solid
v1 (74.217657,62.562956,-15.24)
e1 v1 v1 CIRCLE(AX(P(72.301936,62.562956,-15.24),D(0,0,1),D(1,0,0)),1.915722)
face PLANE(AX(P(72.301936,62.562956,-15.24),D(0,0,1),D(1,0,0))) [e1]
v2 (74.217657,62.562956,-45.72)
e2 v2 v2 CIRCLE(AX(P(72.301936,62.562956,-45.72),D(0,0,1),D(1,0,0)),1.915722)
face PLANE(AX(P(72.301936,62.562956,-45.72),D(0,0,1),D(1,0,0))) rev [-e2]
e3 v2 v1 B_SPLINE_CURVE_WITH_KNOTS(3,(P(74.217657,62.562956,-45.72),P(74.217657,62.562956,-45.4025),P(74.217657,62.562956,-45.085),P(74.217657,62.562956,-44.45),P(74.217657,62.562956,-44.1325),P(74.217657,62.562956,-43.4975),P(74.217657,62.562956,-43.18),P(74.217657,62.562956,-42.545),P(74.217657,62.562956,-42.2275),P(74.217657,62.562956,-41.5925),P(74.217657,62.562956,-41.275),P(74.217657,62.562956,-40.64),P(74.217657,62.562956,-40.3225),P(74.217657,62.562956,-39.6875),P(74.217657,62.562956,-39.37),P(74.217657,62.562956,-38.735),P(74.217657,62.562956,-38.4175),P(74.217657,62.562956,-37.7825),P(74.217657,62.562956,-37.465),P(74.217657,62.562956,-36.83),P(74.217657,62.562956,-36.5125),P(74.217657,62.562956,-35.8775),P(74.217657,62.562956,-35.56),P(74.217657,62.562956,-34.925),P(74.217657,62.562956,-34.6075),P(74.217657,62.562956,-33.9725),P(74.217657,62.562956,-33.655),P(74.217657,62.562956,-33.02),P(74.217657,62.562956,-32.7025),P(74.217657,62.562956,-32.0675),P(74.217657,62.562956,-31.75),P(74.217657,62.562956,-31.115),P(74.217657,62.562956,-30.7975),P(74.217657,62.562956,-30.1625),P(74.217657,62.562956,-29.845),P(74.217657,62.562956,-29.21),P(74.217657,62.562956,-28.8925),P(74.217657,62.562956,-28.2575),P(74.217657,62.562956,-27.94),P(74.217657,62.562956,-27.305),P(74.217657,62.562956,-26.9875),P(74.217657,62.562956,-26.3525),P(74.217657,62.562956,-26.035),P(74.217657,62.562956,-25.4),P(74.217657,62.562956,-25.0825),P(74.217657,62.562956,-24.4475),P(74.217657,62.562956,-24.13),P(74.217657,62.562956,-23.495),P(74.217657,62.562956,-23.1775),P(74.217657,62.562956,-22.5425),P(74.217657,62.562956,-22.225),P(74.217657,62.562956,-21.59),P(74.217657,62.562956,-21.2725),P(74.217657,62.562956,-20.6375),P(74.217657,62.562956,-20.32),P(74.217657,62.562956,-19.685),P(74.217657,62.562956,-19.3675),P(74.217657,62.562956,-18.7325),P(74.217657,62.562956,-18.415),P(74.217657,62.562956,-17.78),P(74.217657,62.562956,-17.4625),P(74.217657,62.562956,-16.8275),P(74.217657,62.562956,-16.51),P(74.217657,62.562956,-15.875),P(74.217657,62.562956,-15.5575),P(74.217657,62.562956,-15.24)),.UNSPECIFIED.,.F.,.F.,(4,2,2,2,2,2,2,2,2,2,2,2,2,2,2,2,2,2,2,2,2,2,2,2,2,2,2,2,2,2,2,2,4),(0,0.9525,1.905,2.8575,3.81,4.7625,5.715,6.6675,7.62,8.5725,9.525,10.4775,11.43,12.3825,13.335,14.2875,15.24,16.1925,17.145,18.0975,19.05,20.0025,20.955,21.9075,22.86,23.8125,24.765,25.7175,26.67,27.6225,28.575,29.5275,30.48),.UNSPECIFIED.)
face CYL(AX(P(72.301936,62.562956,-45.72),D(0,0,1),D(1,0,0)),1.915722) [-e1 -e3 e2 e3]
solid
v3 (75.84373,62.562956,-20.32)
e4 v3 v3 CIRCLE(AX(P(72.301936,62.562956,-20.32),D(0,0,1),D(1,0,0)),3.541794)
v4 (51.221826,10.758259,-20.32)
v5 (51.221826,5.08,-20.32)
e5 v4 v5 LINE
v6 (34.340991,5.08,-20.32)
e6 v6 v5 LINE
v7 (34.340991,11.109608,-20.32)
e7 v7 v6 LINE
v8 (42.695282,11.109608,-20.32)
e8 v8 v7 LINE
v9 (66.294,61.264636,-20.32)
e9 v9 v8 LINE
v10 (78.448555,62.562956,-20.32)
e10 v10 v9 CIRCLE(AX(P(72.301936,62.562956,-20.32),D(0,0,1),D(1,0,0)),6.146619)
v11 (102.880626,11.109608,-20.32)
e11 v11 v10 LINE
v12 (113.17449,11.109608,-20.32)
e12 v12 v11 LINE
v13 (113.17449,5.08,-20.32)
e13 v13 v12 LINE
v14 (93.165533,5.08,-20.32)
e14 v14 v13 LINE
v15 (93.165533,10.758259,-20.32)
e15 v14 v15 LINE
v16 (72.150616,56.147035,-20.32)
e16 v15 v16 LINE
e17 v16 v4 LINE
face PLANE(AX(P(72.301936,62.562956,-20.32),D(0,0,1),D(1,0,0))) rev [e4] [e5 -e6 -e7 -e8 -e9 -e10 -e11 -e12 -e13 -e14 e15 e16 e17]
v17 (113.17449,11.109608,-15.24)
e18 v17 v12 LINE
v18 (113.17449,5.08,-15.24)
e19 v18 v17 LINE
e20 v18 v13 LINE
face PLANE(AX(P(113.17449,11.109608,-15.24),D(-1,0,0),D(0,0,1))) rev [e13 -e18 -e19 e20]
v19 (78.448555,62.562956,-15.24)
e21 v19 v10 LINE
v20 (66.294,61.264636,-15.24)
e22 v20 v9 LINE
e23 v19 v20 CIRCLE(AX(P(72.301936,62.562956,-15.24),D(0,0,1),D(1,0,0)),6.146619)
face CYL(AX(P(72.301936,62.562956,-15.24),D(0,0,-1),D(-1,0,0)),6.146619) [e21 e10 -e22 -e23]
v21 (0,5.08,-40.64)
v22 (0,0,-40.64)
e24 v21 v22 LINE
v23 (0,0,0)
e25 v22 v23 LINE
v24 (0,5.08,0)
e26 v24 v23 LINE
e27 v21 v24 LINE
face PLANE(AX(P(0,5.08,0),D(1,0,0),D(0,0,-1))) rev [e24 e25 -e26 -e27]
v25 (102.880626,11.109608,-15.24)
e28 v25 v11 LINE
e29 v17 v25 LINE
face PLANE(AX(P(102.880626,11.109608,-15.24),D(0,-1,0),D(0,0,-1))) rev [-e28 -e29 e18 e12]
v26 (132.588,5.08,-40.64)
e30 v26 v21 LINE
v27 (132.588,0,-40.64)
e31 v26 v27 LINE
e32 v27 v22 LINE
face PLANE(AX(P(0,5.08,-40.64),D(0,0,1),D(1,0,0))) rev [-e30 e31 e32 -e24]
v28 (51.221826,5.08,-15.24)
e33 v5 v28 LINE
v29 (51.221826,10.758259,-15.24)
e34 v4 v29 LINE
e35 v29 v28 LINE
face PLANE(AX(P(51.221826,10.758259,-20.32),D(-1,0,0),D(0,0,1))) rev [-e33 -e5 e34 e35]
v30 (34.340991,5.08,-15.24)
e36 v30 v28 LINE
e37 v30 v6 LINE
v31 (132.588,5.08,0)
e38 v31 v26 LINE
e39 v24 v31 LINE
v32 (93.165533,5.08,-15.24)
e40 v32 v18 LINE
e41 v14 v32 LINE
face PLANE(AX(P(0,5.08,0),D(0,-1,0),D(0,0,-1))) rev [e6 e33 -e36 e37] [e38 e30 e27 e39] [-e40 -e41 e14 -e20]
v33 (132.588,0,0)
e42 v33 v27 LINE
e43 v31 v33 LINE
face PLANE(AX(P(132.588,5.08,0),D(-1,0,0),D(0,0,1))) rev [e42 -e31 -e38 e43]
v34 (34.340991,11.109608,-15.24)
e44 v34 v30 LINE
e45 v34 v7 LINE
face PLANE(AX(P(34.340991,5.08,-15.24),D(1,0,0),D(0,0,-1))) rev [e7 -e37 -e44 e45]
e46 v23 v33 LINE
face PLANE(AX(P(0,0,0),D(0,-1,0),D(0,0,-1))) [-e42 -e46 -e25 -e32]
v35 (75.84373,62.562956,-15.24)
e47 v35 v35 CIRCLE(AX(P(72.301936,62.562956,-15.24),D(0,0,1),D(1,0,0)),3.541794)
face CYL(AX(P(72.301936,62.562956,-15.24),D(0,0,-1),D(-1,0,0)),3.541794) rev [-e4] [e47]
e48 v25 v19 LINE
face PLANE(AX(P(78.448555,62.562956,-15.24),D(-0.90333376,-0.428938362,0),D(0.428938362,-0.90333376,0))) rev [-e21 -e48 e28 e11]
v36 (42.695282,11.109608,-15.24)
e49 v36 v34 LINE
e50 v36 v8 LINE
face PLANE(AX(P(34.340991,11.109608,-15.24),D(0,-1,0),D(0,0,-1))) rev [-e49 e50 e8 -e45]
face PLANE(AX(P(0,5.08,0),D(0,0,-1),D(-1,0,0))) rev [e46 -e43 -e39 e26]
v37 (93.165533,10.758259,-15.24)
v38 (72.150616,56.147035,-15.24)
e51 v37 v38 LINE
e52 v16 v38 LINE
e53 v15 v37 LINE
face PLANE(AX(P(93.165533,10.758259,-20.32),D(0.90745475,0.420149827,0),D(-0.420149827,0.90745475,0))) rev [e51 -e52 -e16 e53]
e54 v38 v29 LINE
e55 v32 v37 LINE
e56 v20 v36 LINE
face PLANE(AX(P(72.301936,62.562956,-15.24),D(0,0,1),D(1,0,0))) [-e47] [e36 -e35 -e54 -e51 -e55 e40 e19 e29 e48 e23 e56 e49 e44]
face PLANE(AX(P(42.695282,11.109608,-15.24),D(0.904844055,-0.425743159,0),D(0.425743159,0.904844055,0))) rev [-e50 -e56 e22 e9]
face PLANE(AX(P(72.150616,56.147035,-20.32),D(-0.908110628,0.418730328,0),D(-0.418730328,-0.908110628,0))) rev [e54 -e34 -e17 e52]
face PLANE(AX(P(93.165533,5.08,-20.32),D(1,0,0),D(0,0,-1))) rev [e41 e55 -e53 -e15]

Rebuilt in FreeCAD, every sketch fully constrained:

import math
import FreeCAD as App
import Part
import Sketcher
Q = App.Units.Quantity


def add_polygon(sketch, points):
    """Adds a closed chain of lines whose ends are joined by coincident constraints."""
    first, n = sketch.GeometryCount, len(points)
    for a, b in zip(points, points[1:] + points[:1]):
        sketch.addGeometry(Part.LineSegment(App.Vector(*a, 0), App.Vector(*b, 0)), False)
    for i in range(n):
        sketch.addConstraint(Sketcher.Constraint("Coincident", first + i, 2, first + (i + 1) % n, 1))

doc = App.newDocument("Part")
params = doc.addObject("Spreadsheet::Sheet", "Params")
for row, (alias, value) in enumerate([
    ("sketch1_height", "1.6 in"),
    ("sketch1_width", "5.22 in"),
    ("pad1_length", "0.2 in"),
    ("pad2_length", "0.2 in"),
    ("pocket1_length", "0.2 in"),
    ("pad3_length", "1.2 in"),
], start=1):
    params.set(f"A{row}", alias)
    params.set(f"B{row}", "=" + value)
    params.setAlias(f"B{row}", alias)

body = doc.addObject("PartDesign::Body", "Body")

# Sketch on XZ plane
sketch1 = doc.addObject("Sketcher::SketchObject", "Sketch")
body.addObject(sketch1)
sketch1.AttachmentSupport = (doc.XZ_Plane, [""])
sketch1.MapMode = "FlatFace"
add_polygon(sketch1, [(0, -41), (0, 0), (133, 0), (133, -41)])  # lines 0-3
sketch1.addConstraint([
    Sketcher.Constraint("Vertical", 0),
    Sketcher.Constraint("Horizontal", 1),
    Sketcher.Constraint("Vertical", 2),
    Sketcher.Constraint("Horizontal", 3),
    Sketcher.Constraint("Coincident", 0, 2, -1, 1),
    Sketcher.Constraint("DistanceY", 0, 1, 0, 2, Q("1.6 in")),
    Sketcher.Constraint("DistanceX", 1, 1, 1, 2, Q("5.22 in")),
])
sketch1.setExpression("Constraints[9]", "Params.sketch1_height")
sketch1.setExpression("Constraints[10]", "Params.sketch1_width")
pad1 = doc.addObject("PartDesign::Pad", "Pad")
body.addObject(pad1)
pad1.Profile = sketch1
pad1.setExpression("Length", "Params.pad1_length")
pad1.Reversed = True

# Sketch on XY plane
sketch2 = doc.addObject("Sketcher::SketchObject", "Sketch001")
body.addObject(sketch2)
sketch2.AttachmentSupport = (doc.XY_Plane, [""])
sketch2.MapMode = "FlatFace"
sketch2.AttachmentOffset = App.Placement(App.Vector(0, 0, -0.8 * 25.4), App.Rotation())
sketch2.addGeometry([
    Part.LineSegment(App.Vector(34.3, 11.1, 0), App.Vector(34.3, 5.1, 0)),  # 0
    Part.LineSegment(App.Vector(34.3, 5.1, 0), App.Vector(113.2, 5.1, 0)),  # 1
    Part.LineSegment(App.Vector(113.2, 5.1, 0), App.Vector(113.2, 11.1, 0)),  # 2
    Part.LineSegment(App.Vector(113.2, 11.1, 0), App.Vector(102.9, 11.1, 0)),  # 3
    Part.LineSegment(App.Vector(102.9, 11.1, 0), App.Vector(78.4, 62.6, 0)),  # 4
    Part.ArcOfCircle(Part.Circle(App.Vector(72.3, 62.6, 0), App.Vector(0, 0, 1), 6.1), math.radians(0), math.radians(192)),  # 5
    Part.LineSegment(App.Vector(66.3, 61.3, 0), App.Vector(42.7, 11.1, 0)),  # 6
    Part.LineSegment(App.Vector(42.7, 11.1, 0), App.Vector(34.3, 11.1, 0)),  # 7
    Part.Circle(App.Vector(72.3, 62.6, 0), App.Vector(0, 0, 1), 3.5),  # 8
], False)
sketch2.addConstraint([
    Sketcher.Constraint("Coincident", 0, 2, 1, 1),
    Sketcher.Constraint("Coincident", 1, 2, 2, 1),
    Sketcher.Constraint("Coincident", 2, 2, 3, 1),
    Sketcher.Constraint("Coincident", 3, 2, 4, 1),
    Sketcher.Constraint("Coincident", 4, 2, 5, 1),
    Sketcher.Constraint("Coincident", 5, 2, 6, 1),
    Sketcher.Constraint("Coincident", 6, 2, 7, 1),
    Sketcher.Constraint("Coincident", 7, 2, 0, 1),
    Sketcher.Constraint("Vertical", 0),
    Sketcher.Constraint("Horizontal", 1),
    Sketcher.Constraint("Vertical", 2),
    Sketcher.Constraint("Horizontal", 3),
    Sketcher.Constraint("Horizontal", 7),
    Sketcher.Constraint("Coincident", 8, 3, 5, 3),
    Sketcher.Constraint("Horizontal", 8, 3, 4, 2),
    Sketcher.Constraint("Horizontal", 3, 2, 6, 2),
    Sketcher.Constraint("DistanceY", -1, 1, 0, 2, Q("0.2 in")),
    Sketcher.Constraint("DistanceX", -1, 1, 5, 2, Q("2.61 in")),
    Sketcher.Constraint("Radius", 5, Q("6.146619 mm")),
    Sketcher.Constraint("Diameter", 8, Q("7.083588 mm")),
    Sketcher.Constraint("DistanceX", 1, 1, 1, 2, Q("78.8335 mm")),
    Sketcher.Constraint("Distance", 4, Q("56.959399 mm")),
    Sketcher.Constraint("DistanceX", 7, 2, 7, 1, Q("8.354291 mm")),
    Sketcher.Constraint("Distance", 6, Q("55.429472 mm")),
    Sketcher.Constraint("DistanceX", 3, 2, 3, 1, Q("10.293864 mm")),
    Sketcher.Constraint("DistanceY", 0, 2, 0, 1, Q("6.029608 mm")),
    Sketcher.Constraint("DistanceX", -1, 1, 0, 2, Q("34.340991 mm")),
])
pad2 = doc.addObject("PartDesign::Pad", "Pad001")
body.addObject(pad2)
pad2.Profile = sketch2
pad2.setExpression("Length", "Params.pad2_length")

# Sketch on XY plane
sketch3 = doc.addObject("Sketcher::SketchObject", "Sketch002")
body.addObject(sketch3)
sketch3.AttachmentSupport = (doc.XY_Plane, [""])
sketch3.MapMode = "FlatFace"
sketch3.AttachmentOffset = App.Placement(App.Vector(0, 0, -0.6 * 25.4), App.Rotation())
add_polygon(sketch3, [(72, 56), (51, 11), (51, 5), (93, 5), (93, 11)])  # lines 0-4
sketch3.addConstraint([
    Sketcher.Constraint("Vertical", 1),
    Sketcher.Constraint("Horizontal", 2),
    Sketcher.Constraint("Vertical", 3),
    Sketcher.Constraint("Horizontal", 0, 2, 3, 2),
    Sketcher.Constraint("DistanceY", -1, 1, 1, 2, Q("0.2 in")),
    Sketcher.Constraint("DistanceY", 1, 2, 1, 1, Q("5.678259 mm")),
    Sketcher.Constraint("Distance", 0, Q("49.981549 mm")),
    Sketcher.Constraint("DistanceX", 2, 1, 2, 2, Q("41.943708 mm")),
    Sketcher.Constraint("DistanceX", 0, 2, 4, 2, Q("20.92879 mm")),
    Sketcher.Constraint("DistanceX", -1, 1, 0, 2, Q("51.221826 mm")),
])
pocket1 = doc.addObject("PartDesign::Pocket", "Pocket")
body.addObject(pocket1)
pocket1.Profile = sketch3
pocket1.setExpression("Length", "Params.pocket1_length")
body2 = doc.addObject("PartDesign::Body", "Body001")

# Sketch on XY plane
sketch4 = doc.addObject("Sketcher::SketchObject", "Sketch003")
body2.addObject(sketch4)
sketch4.AttachmentSupport = (doc.getObject("XY_Plane001"), [""])
sketch4.MapMode = "FlatFace"
sketch4.AttachmentOffset = App.Placement(App.Vector(0, 0, -0.6 * 25.4), App.Rotation())
sketch4.addGeometry(Part.Circle(App.Vector(72.3, 62.6, 0), App.Vector(0, 0, 1), 1.9), False)
sketch4.addConstraint([
    Sketcher.Constraint("Diameter", 0, Q("3.831443 mm")),
    Sketcher.Constraint("DistanceX", -1, 1, 0, 3, Q("72.301936 mm")),
    Sketcher.Constraint("DistanceY", -1, 1, 0, 3, Q("62.562956 mm")),
])
pad3 = doc.addObject("PartDesign::Pad", "Pad002")
body2.addObject(pad3)
pad3.Profile = sketch4
pad3.setExpression("Length", "Params.pad3_length")
pad3.Reversed = True

doc.recompute()
